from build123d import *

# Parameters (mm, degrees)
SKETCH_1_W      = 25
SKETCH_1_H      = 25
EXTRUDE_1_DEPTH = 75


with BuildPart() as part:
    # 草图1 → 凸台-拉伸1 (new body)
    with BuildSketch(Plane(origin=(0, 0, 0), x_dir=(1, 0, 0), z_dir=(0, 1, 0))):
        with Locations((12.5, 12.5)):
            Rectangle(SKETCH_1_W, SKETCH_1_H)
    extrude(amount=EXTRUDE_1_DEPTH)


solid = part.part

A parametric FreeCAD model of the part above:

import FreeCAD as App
import Part
import Sketcher

V = App.Vector

doc = App.newDocument("Part")
params = doc.addObject("Spreadsheet::Sheet", "Params")
for row, (alias, value) in enumerate([
    ("sketch1_width", "25 mm"),
    ("pad1_length", "75 mm"),
], start=1):
    params.set(f"A{row}", alias)
    params.set(f"B{row}", "=" + value)
    params.setAlias(f"B{row}", alias)

body = doc.addObject("PartDesign::Body", "Body")

# Sketch on XZ plane
sketch1 = body.newObject("Sketcher::SketchObject", "Sketch")
sketch1.AttachmentSupport = (doc.getObject("XZ_Plane"), [""])
sketch1.MapMode = "FlatFace"
sketch1.addGeometry([
    Part.LineSegment(V(0, -25, 0), V(0, 0, 0)),
    Part.LineSegment(V(0, 0, 0), V(25, 0, 0)),
    Part.LineSegment(V(25, 0, 0), V(25, -25, 0)),
    Part.LineSegment(V(25, -25, 0), V(0, -25, 0)),
], False)
sketch1.addConstraint([
    Sketcher.Constraint("Coincident", 0, 2, 1, 1),
    Sketcher.Constraint("Coincident", 1, 2, 2, 1),
    Sketcher.Constraint("Coincident", 2, 2, 3, 1),
    Sketcher.Constraint("Coincident", 3, 2, 0, 1),
    Sketcher.Constraint("Vertical", 0),
    Sketcher.Constraint("Horizontal", 1),
    Sketcher.Constraint("Vertical", 2),
    Sketcher.Constraint("Horizontal", 3),
    Sketcher.Constraint("Coincident", 0, 2, -1, 1),
    Sketcher.Constraint("Equal", 3, 0),
    Sketcher.Constraint("DistanceX", 1, 1, 1, 2, 25.0),
])
sketch1.setExpression("Constraints[10]", "Params.sketch1_width")
pad1 = body.newObject("PartDesign::Pad", "Pad")
pad1.Profile = sketch1
pad1.setExpression("Length", "Params.pad1_length")
pad1.Reversed = True

doc.recompute()
